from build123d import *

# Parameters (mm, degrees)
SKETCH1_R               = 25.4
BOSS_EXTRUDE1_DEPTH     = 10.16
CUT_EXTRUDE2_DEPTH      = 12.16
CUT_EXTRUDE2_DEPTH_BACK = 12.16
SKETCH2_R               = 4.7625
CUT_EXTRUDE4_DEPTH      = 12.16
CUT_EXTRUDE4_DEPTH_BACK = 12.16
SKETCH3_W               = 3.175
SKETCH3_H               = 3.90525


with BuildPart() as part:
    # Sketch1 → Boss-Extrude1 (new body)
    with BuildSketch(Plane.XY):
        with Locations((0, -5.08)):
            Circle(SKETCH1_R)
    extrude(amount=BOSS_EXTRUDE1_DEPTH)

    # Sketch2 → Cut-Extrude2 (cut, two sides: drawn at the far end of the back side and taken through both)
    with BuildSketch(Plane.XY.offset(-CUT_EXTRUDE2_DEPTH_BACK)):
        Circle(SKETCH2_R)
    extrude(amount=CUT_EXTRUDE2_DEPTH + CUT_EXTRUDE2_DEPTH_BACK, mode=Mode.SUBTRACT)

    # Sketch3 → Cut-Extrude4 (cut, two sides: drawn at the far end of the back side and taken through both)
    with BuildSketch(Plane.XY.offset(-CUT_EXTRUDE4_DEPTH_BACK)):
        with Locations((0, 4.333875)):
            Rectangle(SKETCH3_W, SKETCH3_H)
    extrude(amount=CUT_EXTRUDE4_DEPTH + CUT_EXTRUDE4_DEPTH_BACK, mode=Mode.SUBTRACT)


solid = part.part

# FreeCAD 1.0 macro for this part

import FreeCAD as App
import Part
import Sketcher

V = App.Vector
Q = App.Units.Quantity


def add_polygon(sketch, points):
    """Adds a closed chain of lines whose ends are joined by coincident constraints."""
    first, n = sketch.GeometryCount, len(points)
    for a, b in zip(points, points[1:] + points[:1]):
        sketch.addGeometry(Part.LineSegment(App.Vector(*a, 0), App.Vector(*b, 0)), False)
    for i in range(n):
        sketch.addConstraint(Sketcher.Constraint("Coincident", first + i, 2, first + (i + 1) % n, 1))

doc = App.newDocument("Part")
body = doc.addObject("PartDesign::Body", "Body")

# Sketch on XY plane
sketch1 = body.newObject("Sketcher::SketchObject", "Sketch")
sketch1.AttachmentSupport = (doc.getObject("XY_Plane"), [""])
sketch1.MapMode = "FlatFace"
sketch1.addGeometry(Part.Circle(V(0, -5, 0), V(0, 0, 1), 25), False)
sketch1.addConstraint([
    Sketcher.Constraint("PointOnObject", 0, 3, -2),
    Sketcher.Constraint("Diameter", 0, Q("2 in")),
    Sketcher.Constraint("DistanceY", 0, 3, -1, 1, Q("0.2 in")),
])
pad1 = body.newObject("PartDesign::Pad", "Pad")
pad1.Profile = sketch1
pad1.Length = Q("0.4 in")

# Sketch on XY plane
sketch2 = body.newObject("Sketcher::SketchObject", "Sketch001")
sketch2.AttachmentSupport = (doc.getObject("XY_Plane"), [""])
sketch2.MapMode = "FlatFace"
sketch2.addGeometry(Part.Circle(V(0, 0, 0), V(0, 0, 1), 4.8), False)
sketch2.addConstraint([
    Sketcher.Constraint("Coincident", 0, 3, -1, 1),
    Sketcher.Constraint("Diameter", 0, Q("0.375 in")),
])
pocket1 = body.newObject("PartDesign::Pocket", "Pocket")
pocket1.Profile = sketch2
pocket1.Type = "ThroughAll"
pocket1.Midplane = True

# Sketch on XY plane
sketch3 = body.newObject("Sketcher::SketchObject", "Sketch002")
sketch3.AttachmentSupport = (doc.getObject("XY_Plane"), [""])
sketch3.MapMode = "FlatFace"
add_polygon(sketch3, [(-1.6, 6.3), (-1.6, 2.4), (1.6, 2.4), (1.6, 6.3)])  # lines 0-3
sketch3.addConstraint([
    Sketcher.Constraint("Vertical", 0),
    Sketcher.Constraint("Horizontal", 1),
    Sketcher.Constraint("Vertical", 2),
    Sketcher.Constraint("Horizontal", 3),
    Sketcher.Constraint("DistanceX", 1, 1, 1, 2, Q("0.125 in")),
    Sketcher.Constraint("DistanceX", 0, 2, -1, 1, Q("0.0625 in")),
    Sketcher.Constraint("DistanceY", -1, 1, 0, 2, Q("0.09375 in")),
    Sketcher.Constraint("DistanceY", -1, 1, 2, 2, Q("0.2475 in")),
])
pocket2 = body.newObject("PartDesign::Pocket", "Pocket001")
pocket2.Profile = sketch3
pocket2.Type = "ThroughAll"
pocket2.Midplane = True

doc.recompute()
